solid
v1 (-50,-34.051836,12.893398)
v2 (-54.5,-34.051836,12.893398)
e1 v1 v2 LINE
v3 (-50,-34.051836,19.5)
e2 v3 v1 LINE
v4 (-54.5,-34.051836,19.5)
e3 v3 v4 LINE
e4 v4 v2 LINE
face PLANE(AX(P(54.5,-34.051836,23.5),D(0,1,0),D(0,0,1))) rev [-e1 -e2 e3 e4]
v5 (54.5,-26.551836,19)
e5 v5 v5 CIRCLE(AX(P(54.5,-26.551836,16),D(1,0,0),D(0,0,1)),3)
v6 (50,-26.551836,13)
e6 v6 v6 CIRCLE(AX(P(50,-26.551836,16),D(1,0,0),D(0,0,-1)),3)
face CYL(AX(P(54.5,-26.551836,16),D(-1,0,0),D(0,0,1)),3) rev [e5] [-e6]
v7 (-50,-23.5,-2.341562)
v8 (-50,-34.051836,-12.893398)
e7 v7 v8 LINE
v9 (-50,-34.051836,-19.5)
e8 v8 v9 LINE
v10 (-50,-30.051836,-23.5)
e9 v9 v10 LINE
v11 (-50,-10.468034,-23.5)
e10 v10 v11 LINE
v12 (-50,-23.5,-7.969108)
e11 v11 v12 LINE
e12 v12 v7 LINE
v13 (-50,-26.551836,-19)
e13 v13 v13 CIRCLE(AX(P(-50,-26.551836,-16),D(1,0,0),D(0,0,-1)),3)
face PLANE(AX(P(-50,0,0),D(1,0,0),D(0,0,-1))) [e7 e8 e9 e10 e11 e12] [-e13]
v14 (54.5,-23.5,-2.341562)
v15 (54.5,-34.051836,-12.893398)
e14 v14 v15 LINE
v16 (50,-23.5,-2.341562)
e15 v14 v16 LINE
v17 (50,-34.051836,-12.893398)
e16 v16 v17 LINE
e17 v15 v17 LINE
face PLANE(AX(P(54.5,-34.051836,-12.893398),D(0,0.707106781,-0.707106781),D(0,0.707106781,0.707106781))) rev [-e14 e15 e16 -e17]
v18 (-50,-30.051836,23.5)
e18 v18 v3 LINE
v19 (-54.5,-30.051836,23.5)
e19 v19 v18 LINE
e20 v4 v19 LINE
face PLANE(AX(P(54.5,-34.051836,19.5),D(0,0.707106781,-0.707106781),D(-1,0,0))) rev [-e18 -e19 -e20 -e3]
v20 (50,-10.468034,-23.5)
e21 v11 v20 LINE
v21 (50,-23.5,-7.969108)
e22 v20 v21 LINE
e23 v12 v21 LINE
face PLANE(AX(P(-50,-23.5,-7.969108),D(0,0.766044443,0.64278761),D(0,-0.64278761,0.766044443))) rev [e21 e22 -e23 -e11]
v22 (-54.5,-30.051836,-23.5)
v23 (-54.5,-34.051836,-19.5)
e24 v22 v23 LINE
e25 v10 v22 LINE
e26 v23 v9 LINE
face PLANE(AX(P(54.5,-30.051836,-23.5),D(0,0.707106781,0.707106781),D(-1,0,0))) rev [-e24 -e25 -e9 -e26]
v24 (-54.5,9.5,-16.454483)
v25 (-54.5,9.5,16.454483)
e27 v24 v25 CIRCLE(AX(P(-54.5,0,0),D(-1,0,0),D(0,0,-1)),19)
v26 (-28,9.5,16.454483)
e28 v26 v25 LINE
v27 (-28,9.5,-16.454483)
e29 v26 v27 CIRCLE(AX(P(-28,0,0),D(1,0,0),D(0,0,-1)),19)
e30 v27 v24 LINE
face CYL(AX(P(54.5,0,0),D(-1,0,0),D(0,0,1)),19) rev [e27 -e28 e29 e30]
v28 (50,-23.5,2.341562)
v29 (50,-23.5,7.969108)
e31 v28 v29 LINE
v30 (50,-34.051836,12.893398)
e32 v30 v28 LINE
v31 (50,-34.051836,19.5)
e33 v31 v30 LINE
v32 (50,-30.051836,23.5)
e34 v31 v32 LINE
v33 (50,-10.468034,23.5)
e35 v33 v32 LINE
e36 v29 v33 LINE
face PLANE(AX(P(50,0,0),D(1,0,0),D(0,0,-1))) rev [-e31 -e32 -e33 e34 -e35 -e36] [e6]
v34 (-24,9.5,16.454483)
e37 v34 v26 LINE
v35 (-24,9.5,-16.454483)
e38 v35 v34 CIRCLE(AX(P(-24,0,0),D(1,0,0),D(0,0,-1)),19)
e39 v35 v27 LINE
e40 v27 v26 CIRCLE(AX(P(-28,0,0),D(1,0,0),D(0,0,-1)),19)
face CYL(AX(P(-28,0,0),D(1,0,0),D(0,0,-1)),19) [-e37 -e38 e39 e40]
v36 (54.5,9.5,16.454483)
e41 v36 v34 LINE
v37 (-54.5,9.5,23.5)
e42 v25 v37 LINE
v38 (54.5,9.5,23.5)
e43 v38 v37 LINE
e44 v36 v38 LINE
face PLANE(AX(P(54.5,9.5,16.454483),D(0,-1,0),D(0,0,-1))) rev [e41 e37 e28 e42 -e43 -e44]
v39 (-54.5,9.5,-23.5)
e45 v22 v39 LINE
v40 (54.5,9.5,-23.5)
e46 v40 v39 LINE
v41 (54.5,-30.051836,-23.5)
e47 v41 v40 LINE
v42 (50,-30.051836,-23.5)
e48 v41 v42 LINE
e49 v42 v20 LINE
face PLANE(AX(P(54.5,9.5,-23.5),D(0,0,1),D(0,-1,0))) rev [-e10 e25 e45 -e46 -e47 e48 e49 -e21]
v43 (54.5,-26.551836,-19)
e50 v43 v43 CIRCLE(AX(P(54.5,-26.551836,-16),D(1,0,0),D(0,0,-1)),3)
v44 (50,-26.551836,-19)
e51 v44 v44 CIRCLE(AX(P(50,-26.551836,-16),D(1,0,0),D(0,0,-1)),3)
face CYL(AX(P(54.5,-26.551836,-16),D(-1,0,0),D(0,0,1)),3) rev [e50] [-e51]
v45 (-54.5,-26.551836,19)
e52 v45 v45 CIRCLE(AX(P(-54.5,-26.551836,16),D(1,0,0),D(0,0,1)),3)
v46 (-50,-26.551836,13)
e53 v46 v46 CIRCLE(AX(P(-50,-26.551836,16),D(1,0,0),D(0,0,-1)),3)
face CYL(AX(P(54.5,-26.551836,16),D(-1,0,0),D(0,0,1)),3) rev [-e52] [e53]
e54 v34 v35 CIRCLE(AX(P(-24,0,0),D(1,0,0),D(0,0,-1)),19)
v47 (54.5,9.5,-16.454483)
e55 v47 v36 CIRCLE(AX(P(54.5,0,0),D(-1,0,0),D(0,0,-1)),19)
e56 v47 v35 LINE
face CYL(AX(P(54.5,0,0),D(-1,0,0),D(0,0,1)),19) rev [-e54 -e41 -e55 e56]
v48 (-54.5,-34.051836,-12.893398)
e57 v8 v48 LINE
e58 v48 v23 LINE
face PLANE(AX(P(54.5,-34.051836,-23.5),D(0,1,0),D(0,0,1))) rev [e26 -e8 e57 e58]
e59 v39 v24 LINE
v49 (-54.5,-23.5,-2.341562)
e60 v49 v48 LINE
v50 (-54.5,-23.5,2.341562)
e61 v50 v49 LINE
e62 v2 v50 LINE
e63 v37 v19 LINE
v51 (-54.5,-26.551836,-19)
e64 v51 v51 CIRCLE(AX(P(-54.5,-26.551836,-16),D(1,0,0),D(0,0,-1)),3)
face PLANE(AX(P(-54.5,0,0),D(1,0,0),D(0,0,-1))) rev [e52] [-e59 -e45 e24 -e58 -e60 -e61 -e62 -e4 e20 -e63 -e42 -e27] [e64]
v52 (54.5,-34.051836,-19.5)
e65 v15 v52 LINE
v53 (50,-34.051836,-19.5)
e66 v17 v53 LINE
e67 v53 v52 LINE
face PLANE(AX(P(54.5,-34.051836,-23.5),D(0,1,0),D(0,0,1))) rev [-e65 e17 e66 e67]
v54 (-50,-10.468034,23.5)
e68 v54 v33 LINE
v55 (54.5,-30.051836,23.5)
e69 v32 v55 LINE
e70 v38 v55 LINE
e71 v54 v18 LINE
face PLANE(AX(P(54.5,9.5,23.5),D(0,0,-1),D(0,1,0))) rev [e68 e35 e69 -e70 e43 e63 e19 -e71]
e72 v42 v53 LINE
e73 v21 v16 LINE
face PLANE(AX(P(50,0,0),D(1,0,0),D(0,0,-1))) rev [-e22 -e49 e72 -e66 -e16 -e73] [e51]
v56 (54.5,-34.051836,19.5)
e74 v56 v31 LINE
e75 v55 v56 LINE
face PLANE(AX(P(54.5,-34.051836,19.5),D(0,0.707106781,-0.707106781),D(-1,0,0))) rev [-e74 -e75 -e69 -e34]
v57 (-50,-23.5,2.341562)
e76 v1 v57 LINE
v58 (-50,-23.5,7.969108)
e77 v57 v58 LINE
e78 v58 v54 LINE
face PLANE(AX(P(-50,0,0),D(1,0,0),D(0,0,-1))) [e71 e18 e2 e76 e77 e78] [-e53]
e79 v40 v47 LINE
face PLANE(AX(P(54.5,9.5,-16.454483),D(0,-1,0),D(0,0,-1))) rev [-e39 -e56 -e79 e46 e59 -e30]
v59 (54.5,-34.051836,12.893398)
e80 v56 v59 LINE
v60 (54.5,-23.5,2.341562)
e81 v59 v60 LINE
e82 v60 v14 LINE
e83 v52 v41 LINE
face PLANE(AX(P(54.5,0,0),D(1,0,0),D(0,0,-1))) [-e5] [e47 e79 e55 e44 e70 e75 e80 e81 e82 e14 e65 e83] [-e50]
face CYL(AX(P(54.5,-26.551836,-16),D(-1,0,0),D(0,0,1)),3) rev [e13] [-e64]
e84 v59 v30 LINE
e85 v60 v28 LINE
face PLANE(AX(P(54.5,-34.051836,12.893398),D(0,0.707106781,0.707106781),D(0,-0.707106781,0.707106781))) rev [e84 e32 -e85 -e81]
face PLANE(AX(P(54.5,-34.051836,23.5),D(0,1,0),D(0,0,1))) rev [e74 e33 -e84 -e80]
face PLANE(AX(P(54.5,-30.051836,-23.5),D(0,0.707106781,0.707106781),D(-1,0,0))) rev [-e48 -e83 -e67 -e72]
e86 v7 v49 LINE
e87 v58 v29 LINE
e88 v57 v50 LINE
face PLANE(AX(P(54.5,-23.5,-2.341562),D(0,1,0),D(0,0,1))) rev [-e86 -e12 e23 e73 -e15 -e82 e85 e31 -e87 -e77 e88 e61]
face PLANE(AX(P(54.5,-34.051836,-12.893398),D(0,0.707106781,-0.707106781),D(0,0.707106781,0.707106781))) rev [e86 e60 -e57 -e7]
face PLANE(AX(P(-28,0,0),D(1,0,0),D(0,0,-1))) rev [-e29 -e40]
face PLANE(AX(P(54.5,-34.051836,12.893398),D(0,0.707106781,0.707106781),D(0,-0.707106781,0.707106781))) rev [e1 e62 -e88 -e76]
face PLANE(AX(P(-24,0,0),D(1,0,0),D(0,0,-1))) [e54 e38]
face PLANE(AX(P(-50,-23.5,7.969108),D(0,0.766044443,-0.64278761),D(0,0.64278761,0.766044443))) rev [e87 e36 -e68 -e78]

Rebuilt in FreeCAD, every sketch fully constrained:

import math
import FreeCAD as App
import Part
import Sketcher
from FreeCAD import Vector
Q = App.Units.Quantity


def edges_at(feature, points):
    """Names of the edges that pass closest to the given points."""
    edges = feature.Shape.Edges
    near = lambda p: min(range(len(edges)), key=lambda i: edges[i].distToShape(Part.Vertex(*p))[0])
    return sorted({f"Edge{near(p) + 1}" for p in points})

doc = App.newDocument("Part")
body = doc.addObject("PartDesign::Body", "Body")

# Sketch on YZ plane
sketch1 = doc.addObject("Sketcher::SketchObject", "Sketch")
body.addObject(sketch1)
sketch1.AttachmentSupport = (doc.YZ_Plane, [""])
sketch1.MapMode = "FlatFace"
sketch1.AttachmentOffset = App.Placement(Vector(0, 0, -24), App.Rotation())
sketch1.addGeometry(Part.Circle(Vector(0, 0, 0), Vector(0, 0, 1), 19), False)
sketch1.addConstraint([
    Sketcher.Constraint("Coincident", 0, 3, -1, 1),
    Sketcher.Constraint("Diameter", 0, 38.0),
])
pad1 = doc.addObject("PartDesign::Pad", "Pad")
body.addObject(pad1)
pad1.Profile = sketch1
pad1.Length = 4
pad1.Reversed = True

# Sketch on YZ plane
sketch2 = doc.addObject("Sketcher::SketchObject", "Sketch001")
body.addObject(sketch2)
sketch2.AttachmentSupport = (doc.YZ_Plane, [""])
sketch2.MapMode = "FlatFace"
sketch2.addGeometry([
    Part.LineSegment(Vector(9.5, -23.5, 0), Vector(9.5, -16.5, 0)),  # 0
    Part.ArcOfCircle(Part.Circle(Vector(0, 0, 0), Vector(0, 0, 1), 19), math.radians(60), math.radians(300)),  # 1
    Part.LineSegment(Vector(9.5, 16.5, 0), Vector(9.5, 23.5, 0)),  # 2
    Part.LineSegment(Vector(9.5, 23.5, 0), Vector(-34.1, 23.5, 0)),  # 3
    Part.LineSegment(Vector(-34.1, 23.5, 0), Vector(-34.1, 12.9, 0)),  # 4
    Part.LineSegment(Vector(-34.1, 12.9, 0), Vector(-23.5, 2.3, 0)),  # 5
    Part.LineSegment(Vector(-23.5, 2.3, 0), Vector(-23.5, -2.3, 0)),  # 6
    Part.LineSegment(Vector(-23.5, -2.3, 0), Vector(-34.1, -12.9, 0)),  # 7
    Part.LineSegment(Vector(-34.1, -12.9, 0), Vector(-34.1, -23.5, 0)),  # 8
    Part.LineSegment(Vector(-34.1, -23.5, 0), Vector(9.5, -23.5, 0)),  # 9
    Part.Circle(Vector(-26.6, -16, 0), Vector(0, 0, 1), 3),  # 10
    Part.Circle(Vector(-26.6, 16, 0), Vector(0, 0, 1), 3),  # 11
], False)
sketch2.addConstraint([
    Sketcher.Constraint("Coincident", 0, 2, 1, 2),
    Sketcher.Constraint("Coincident", 1, 1, 2, 1),
    Sketcher.Constraint("Coincident", 2, 2, 3, 1),
    Sketcher.Constraint("Coincident", 3, 2, 4, 1),
    Sketcher.Constraint("Coincident", 4, 2, 5, 1),
    Sketcher.Constraint("Coincident", 5, 2, 6, 1),
    Sketcher.Constraint("Coincident", 6, 2, 7, 1),
    Sketcher.Constraint("Coincident", 7, 2, 8, 1),
    Sketcher.Constraint("Coincident", 8, 2, 9, 1),
    Sketcher.Constraint("Coincident", 9, 2, 0, 1),
    Sketcher.Constraint("Vertical", 0),
    Sketcher.Constraint("Vertical", 2),
    Sketcher.Constraint("Horizontal", 3),
    Sketcher.Constraint("Vertical", 4),
    Sketcher.Constraint("Vertical", 6),
    Sketcher.Constraint("Vertical", 8),
    Sketcher.Constraint("Horizontal", 9),
    Sketcher.Constraint("Coincident", 1, 3, -1, 1),
    Sketcher.Constraint("Equal", 10, 11),
    Sketcher.Constraint("Symmetric", 10, 3, 11, 3, -1),
    Sketcher.Constraint("Symmetric", 4, 2, 7, 2, -1),
    Sketcher.Constraint("Symmetric", 2, 2, 9, 2, -1),
    Sketcher.Constraint("Perpendicular", 5, 7),
    Sketcher.Constraint("Equal", 5, 7),
    Sketcher.Constraint("Diameter", 10, 6.0),
    Sketcher.Constraint("Radius", 1, 19.0),
    Sketcher.Constraint("DistanceY", 10, 3, -1, 1, 16.0),
    Sketcher.Constraint("DistanceX", 6, 2, 9, 2, 33.0),
    Sketcher.Constraint("DistanceX", -1, 1, 0, 2, 9.5),
    Sketcher.Constraint("DistanceY", -1, 1, 2, 2, 23.5),
    Sketcher.Constraint("DistanceX", 3, 2, 11, 3, 7.5),
    Sketcher.Constraint("DistanceY", 4, 2, 4, 1, 10.606602),
    Sketcher.Constraint("Distance", 5, 14.92255),
])
pad2 = doc.addObject("PartDesign::Pad", "Pad001")
body.addObject(pad2)
pad2.Profile = sketch2
pad2.Length = 109
pad2.Midplane = True

# Sketch on YZ plane
sketch3 = doc.addObject("Sketcher::SketchObject", "Sketch002")
body.addObject(sketch3)
sketch3.AttachmentSupport = (doc.YZ_Plane, [""])
sketch3.MapMode = "FlatFace"
sketch3.addGeometry([
    Part.LineSegment(Vector(-24, -8, 0), Vector(-24, 8, 0)),  # 0
    Part.LineSegment(Vector(-24, 8, 0), Vector(-10, 24, 0)),  # 1
    Part.LineSegment(Vector(-10, 24, 0), Vector(-34, 24, 0)),  # 2
    Part.LineSegment(Vector(-34, 24, 0), Vector(-34, -24, 0)),  # 3
    Part.LineSegment(Vector(-34, -24, 0), Vector(-10, -24, 0)),  # 4
    Part.LineSegment(Vector(-10, -24, 0), Vector(-24, -8, 0)),  # 5
], False)
sketch3.addConstraint([
    Sketcher.Constraint("Coincident", 0, 2, 1, 1),
    Sketcher.Constraint("Coincident", 1, 2, 2, 1),
    Sketcher.Constraint("Coincident", 2, 2, 3, 1),
    Sketcher.Constraint("Coincident", 3, 2, 4, 1),
    Sketcher.Constraint("Coincident", 4, 2, 5, 1),
    Sketcher.Constraint("Coincident", 5, 2, 0, 1),
    Sketcher.Constraint("Vertical", 0),
    Sketcher.Constraint("Horizontal", 2),
    Sketcher.Constraint("Vertical", 3),
    Sketcher.Constraint("Horizontal", 4),
    Sketcher.Constraint("Symmetric", 1, 2, 4, 2, -1),
    Sketcher.Constraint("Equal", 1, 5),
    Sketcher.Constraint("DistanceY", 3, 2, 3, 1, 47.0),
    Sketcher.Constraint("Angle", 1, Q("50 deg")),
    Sketcher.Constraint("DistanceX", 0, 2, -1, 1, 23.5),
    Sketcher.Constraint("DistanceX", 2, 2, 2, 1, 23.583802),
    Sketcher.Constraint("Distance", 1, 20.27414),
])
pocket1 = doc.addObject("PartDesign::Pocket", "Pocket")
body.addObject(pocket1)
pocket1.Profile = sketch3
pocket1.Length = 100
pocket1.Midplane = True
doc.recompute()

chamfer = doc.addObject("PartDesign::Chamfer", "Chamfer")
body.addObject(chamfer)
chamfer.Base = (pocket1, edges_at(pocket1, [
    (52.25, -34.052, 23.5),
    (52.25, -34.052, -23.5),
    (-52.25, -34.052, -23.5),
    (-52.25, -34.052, 23.5),
]))
chamfer.Size = 4

doc.recompute()
